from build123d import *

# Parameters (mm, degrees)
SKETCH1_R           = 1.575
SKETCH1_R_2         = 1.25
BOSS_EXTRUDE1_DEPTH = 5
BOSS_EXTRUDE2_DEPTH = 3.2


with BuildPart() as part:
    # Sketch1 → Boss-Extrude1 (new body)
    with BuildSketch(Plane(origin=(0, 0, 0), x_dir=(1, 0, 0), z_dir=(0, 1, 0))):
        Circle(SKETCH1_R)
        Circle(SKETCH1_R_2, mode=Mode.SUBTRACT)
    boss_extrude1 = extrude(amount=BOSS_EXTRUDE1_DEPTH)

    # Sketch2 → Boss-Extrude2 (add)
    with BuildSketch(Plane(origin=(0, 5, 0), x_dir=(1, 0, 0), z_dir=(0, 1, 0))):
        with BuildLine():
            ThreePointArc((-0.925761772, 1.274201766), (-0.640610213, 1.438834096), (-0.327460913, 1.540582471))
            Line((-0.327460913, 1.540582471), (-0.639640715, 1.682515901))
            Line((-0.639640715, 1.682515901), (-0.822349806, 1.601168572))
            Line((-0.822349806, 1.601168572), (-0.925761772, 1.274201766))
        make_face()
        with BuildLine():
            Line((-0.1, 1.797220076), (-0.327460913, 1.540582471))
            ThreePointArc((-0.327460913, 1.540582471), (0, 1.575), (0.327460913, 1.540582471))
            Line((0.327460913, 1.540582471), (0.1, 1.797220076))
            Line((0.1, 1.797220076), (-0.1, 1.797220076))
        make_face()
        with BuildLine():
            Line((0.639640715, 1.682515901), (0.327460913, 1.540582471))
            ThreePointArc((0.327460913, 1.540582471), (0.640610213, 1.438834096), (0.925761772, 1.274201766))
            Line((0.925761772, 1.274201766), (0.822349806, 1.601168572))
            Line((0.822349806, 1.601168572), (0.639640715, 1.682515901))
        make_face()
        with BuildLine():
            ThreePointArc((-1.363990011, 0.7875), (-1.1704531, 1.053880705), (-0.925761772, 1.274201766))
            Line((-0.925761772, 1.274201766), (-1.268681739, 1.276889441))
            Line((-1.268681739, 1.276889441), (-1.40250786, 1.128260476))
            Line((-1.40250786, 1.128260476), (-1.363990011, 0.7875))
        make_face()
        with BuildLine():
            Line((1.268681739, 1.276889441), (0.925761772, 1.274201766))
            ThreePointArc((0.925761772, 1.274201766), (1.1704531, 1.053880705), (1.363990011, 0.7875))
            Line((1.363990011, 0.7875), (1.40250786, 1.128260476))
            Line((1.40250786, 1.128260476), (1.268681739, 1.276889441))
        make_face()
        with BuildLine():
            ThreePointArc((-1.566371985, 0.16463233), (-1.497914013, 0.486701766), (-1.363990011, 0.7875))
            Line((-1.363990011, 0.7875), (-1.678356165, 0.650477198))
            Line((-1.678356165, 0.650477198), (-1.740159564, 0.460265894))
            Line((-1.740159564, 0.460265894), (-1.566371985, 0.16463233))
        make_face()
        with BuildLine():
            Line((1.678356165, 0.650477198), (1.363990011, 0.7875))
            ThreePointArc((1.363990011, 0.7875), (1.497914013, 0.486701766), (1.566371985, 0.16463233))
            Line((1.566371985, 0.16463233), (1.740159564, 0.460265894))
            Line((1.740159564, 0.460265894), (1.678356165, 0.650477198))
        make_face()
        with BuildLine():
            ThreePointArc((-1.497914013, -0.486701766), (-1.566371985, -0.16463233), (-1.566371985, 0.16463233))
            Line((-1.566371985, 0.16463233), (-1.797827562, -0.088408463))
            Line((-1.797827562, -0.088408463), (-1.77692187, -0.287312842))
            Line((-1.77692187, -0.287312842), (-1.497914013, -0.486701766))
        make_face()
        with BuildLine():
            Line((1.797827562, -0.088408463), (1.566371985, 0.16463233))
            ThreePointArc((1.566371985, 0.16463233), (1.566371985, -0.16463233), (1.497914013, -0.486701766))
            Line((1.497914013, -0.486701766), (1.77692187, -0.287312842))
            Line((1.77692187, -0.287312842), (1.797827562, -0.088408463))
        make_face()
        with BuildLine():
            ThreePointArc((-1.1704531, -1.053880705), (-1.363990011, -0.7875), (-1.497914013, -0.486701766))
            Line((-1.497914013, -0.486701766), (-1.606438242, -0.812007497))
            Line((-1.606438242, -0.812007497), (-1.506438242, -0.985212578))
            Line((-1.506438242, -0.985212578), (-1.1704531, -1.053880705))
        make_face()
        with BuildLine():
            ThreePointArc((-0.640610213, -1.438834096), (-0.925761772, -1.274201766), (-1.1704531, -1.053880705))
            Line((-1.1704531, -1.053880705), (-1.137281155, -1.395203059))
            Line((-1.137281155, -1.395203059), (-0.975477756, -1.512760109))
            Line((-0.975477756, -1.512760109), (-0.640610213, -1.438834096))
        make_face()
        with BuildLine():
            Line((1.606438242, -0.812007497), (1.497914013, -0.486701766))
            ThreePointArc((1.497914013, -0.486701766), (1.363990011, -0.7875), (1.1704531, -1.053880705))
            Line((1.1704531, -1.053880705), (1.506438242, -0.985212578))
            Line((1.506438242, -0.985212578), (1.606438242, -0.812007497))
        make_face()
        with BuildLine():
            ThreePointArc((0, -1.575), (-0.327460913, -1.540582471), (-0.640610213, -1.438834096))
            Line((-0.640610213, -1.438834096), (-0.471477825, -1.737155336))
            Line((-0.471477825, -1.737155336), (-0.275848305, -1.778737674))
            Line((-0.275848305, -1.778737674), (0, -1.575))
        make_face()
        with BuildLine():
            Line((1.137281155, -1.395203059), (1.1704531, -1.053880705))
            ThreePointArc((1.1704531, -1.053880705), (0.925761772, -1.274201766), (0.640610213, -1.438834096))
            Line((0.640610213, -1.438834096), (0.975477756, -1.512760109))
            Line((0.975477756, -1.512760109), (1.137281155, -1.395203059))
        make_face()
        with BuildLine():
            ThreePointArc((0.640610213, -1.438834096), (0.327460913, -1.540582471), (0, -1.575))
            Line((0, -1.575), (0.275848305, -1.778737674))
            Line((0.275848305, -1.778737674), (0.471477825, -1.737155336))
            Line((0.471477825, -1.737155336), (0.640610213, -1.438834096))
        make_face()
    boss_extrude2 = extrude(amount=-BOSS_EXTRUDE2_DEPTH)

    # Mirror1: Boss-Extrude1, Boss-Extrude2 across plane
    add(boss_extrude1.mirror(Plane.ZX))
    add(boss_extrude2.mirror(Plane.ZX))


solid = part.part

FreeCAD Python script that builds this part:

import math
import FreeCAD as App
import Part
import Sketcher

V = App.Vector
Q = App.Units.Quantity

doc = App.newDocument("Part")
params = doc.addObject("Spreadsheet::Sheet", "Params")
for row, (alias, value) in enumerate([
    ("sketch1_diameter", "2.5 mm"),
    ("sketch1_diameter2", "3.15 mm"),
    ("pad1_length", "5 mm"),
    ("sketch2_width", "0.2 mm"),
    ("sketch2_length", "0.2 mm"),
    ("pad2_length", "3.2 mm"),
], start=1):
    params.set(f"A{row}", alias)
    params.set(f"B{row}", "=" + value)
    params.setAlias(f"B{row}", alias)

body = doc.addObject("PartDesign::Body", "Body")

# Sketch on XZ plane
sketch1 = body.newObject("Sketcher::SketchObject", "Sketch")
sketch1.AttachmentSupport = (doc.getObject("XZ_Plane"), [""])
sketch1.MapMode = "FlatFace"
sketch1.addGeometry(Part.Circle(V(0, 0, 0), V(0, 0, 1), 1.6), False)
sketch1.addGeometry(Part.Circle(V(0, 0, 0), V(0, 0, 1), 1.2), False)
sketch1.addConstraint(Sketcher.Constraint("Coincident", 0, 3, -1, 1))
sketch1.addConstraint(Sketcher.Constraint("Coincident", 1, 3, -1, 1))
sketch1.addConstraint(Sketcher.Constraint("Diameter", 1, Q("2.5 mm")))
sketch1.addConstraint(Sketcher.Constraint("Diameter", 0, Q("3.15 mm")))
sketch1.setExpression("Constraints[2]", "Params.sketch1_diameter")
sketch1.setExpression("Constraints[3]", "Params.sketch1_diameter2")
pad1 = body.newObject("PartDesign::Pad", "Pad")
pad1.Profile = sketch1
pad1.setExpression("Length", "Params.pad1_length")
pad1.Reversed = True

# Sketch on XZ plane
sketch2 = body.newObject("Sketcher::SketchObject", "Sketch001")
sketch2.AttachmentSupport = (doc.getObject("XZ_Plane"), [""])
sketch2.MapMode = "FlatFace"
sketch2.AttachmentOffset = App.Placement(V(0, 0, -5), App.Rotation())
sketch2.addGeometry(Part.ArcOfCircle(Part.Circle(V(0, 0, 0), V(0, 0, 1), 1.57), math.radians(-126), math.radians(-102)), False)
sketch2.addGeometry(Part.LineSegment(V(-0.33, -1.54, 0), V(-0.64, -1.68, 0)), False)
sketch2.addGeometry(Part.LineSegment(V(-0.64, -1.68, 0), V(-0.82, -1.6, 0)), False)
sketch2.addGeometry(Part.LineSegment(V(-0.82, -1.6, 0), V(-0.93, -1.27, 0)), False)
sketch2.addGeometry(Part.LineSegment(V(-0.1, -1.8, 0), V(-0.33, -1.54, 0)), False)
sketch2.addGeometry(Part.ArcOfCircle(Part.Circle(V(0, 0, 0), V(0, 0, 1), 1.57), math.radians(-102), math.radians(-78)), False)
sketch2.addGeometry(Part.LineSegment(V(0.33, -1.54, 0), V(0.1, -1.8, 0)), False)
sketch2.addGeometry(Part.LineSegment(V(0.1, -1.8, 0), V(-0.1, -1.8, 0)), False)
sketch2.addGeometry(Part.LineSegment(V(0.64, -1.68, 0), V(0.33, -1.54, 0)), False)
sketch2.addGeometry(Part.ArcOfCircle(Part.Circle(V(0, 0, 0), V(0, 0, 1), 1.57), math.radians(-78), math.radians(-54)), False)
sketch2.addGeometry(Part.LineSegment(V(0.93, -1.27, 0), V(0.82, -1.6, 0)), False)
sketch2.addGeometry(Part.LineSegment(V(0.82, -1.6, 0), V(0.64, -1.68, 0)), False)
sketch2.addGeometry(Part.ArcOfCircle(Part.Circle(V(0, 0, 0), V(0, 0, 1), 1.57), math.radians(-150), math.radians(-126)), False)
sketch2.addGeometry(Part.LineSegment(V(-0.93, -1.27, 0), V(-1.27, -1.28, 0)), False)
sketch2.addGeometry(Part.LineSegment(V(-1.27, -1.28, 0), V(-1.4, -1.13, 0)), False)
sketch2.addGeometry(Part.LineSegment(V(-1.4, -1.13, 0), V(-1.36, -0.79, 0)), False)
sketch2.addGeometry(Part.LineSegment(V(1.27, -1.28, 0), V(0.93, -1.27, 0)), False)
sketch2.addGeometry(Part.ArcOfCircle(Part.Circle(V(0, 0, 0), V(0, 0, 1), 1.57), math.radians(-54), math.radians(-30)), False)
sketch2.addGeometry(Part.LineSegment(V(1.36, -0.79, 0), V(1.4, -1.13, 0)), False)
sketch2.addGeometry(Part.LineSegment(V(1.4, -1.13, 0), V(1.27, -1.28, 0)), False)
sketch2.addGeometry(Part.ArcOfCircle(Part.Circle(V(0, 0, 0), V(0, 0, 1), 1.58), math.radians(-174), math.radians(-150)), False)
sketch2.addGeometry(Part.LineSegment(V(-1.36, -0.79, 0), V(-1.68, -0.65, 0)), False)
sketch2.addGeometry(Part.LineSegment(V(-1.68, -0.65, 0), V(-1.74, -0.46, 0)), False)
sketch2.addGeometry(Part.LineSegment(V(-1.74, -0.46, 0), V(-1.57, -0.16, 0)), False)
sketch2.addGeometry(Part.LineSegment(V(1.68, -0.65, 0), V(1.36, -0.79, 0)), False)
sketch2.addGeometry(Part.ArcOfCircle(Part.Circle(V(0, 0, 0), V(0, 0, 1), 1.58), math.radians(-30), math.radians(-6)), False)
sketch2.addGeometry(Part.LineSegment(V(1.57, -0.16, 0), V(1.74, -0.46, 0)), False)
sketch2.addGeometry(Part.LineSegment(V(1.74, -0.46, 0), V(1.68, -0.65, 0)), False)
sketch2.addGeometry(Part.ArcOfCircle(Part.Circle(V(0, 0, 0), V(0, 0, 1), 1.57), math.radians(162), math.radians(186)), False)
sketch2.addGeometry(Part.LineSegment(V(-1.57, -0.16, 0), V(-1.8, 0.09, 0)), False)
sketch2.addGeometry(Part.LineSegment(V(-1.8, 0.09, 0), V(-1.78, 0.29, 0)), False)
sketch2.addGeometry(Part.LineSegment(V(-1.78, 0.29, 0), V(-1.5, 0.49, 0)), False)
sketch2.addGeometry(Part.LineSegment(V(1.8, 0.09, 0), V(1.57, -0.16, 0)), False)
sketch2.addGeometry(Part.ArcOfCircle(Part.Circle(V(0, 0, 0), V(0, 0, 1), 1.57), math.radians(-6), math.radians(18)), False)
sketch2.addGeometry(Part.LineSegment(V(1.5, 0.49, 0), V(1.78, 0.29, 0)), False)
sketch2.addGeometry(Part.LineSegment(V(1.78, 0.29, 0), V(1.8, 0.09, 0)), False)
sketch2.addGeometry(Part.ArcOfCircle(Part.Circle(V(0, 0, 0), V(0, 0, 1), 1.57), math.radians(138), math.radians(162)), False)
sketch2.addGeometry(Part.LineSegment(V(-1.5, 0.49, 0), V(-1.61, 0.81, 0)), False)
sketch2.addGeometry(Part.LineSegment(V(-1.61, 0.81, 0), V(-1.51, 0.99, 0)), False)
sketch2.addGeometry(Part.LineSegment(V(-1.51, 0.99, 0), V(-1.17, 1.05, 0)), False)
sketch2.addGeometry(Part.ArcOfCircle(Part.Circle(V(0, 0, 0), V(0, 0, 1), 1.58), math.radians(114), math.radians(138)), False)
sketch2.addGeometry(Part.LineSegment(V(-1.17, 1.05, 0), V(-1.14, 1.4, 0)), False)
sketch2.addGeometry(Part.LineSegment(V(-1.14, 1.4, 0), V(-0.98, 1.51, 0)), False)
sketch2.addGeometry(Part.LineSegment(V(-0.98, 1.51, 0), V(-0.64, 1.44, 0)), False)
sketch2.addGeometry(Part.LineSegment(V(1.61, 0.81, 0), V(1.5, 0.49, 0)), False)
sketch2.addGeometry(Part.ArcOfCircle(Part.Circle(V(0, 0, 0), V(0, 0, 1), 1.57), math.radians(18), math.radians(42)), False)
sketch2.addGeometry(Part.LineSegment(V(1.17, 1.05, 0), V(1.51, 0.99, 0)), False)
sketch2.addGeometry(Part.LineSegment(V(1.51, 0.99, 0), V(1.61, 0.81, 0)), False)
sketch2.addGeometry(Part.ArcOfCircle(Part.Circle(V(0, 0, 0), V(0, 0, 1), 1.58), math.radians(90), math.radians(114)), False)
sketch2.addGeometry(Part.LineSegment(V(-0.64, 1.44, 0), V(-0.47, 1.74, 0)), False)
sketch2.addGeometry(Part.LineSegment(V(-0.47, 1.74, 0), V(-0.28, 1.78, 0)), False)
sketch2.addGeometry(Part.LineSegment(V(-0.28, 1.78, 0), V(0, 1.57, 0)), False)
sketch2.addGeometry(Part.LineSegment(V(1.14, 1.4, 0), V(1.17, 1.05, 0)), False)
sketch2.addGeometry(Part.ArcOfCircle(Part.Circle(V(0, 0, 0), V(0, 0, 1), 1.58), math.radians(42), math.radians(66)), False)
sketch2.addGeometry(Part.LineSegment(V(0.64, 1.44, 0), V(0.98, 1.51, 0)), False)
sketch2.addGeometry(Part.LineSegment(V(0.98, 1.51, 0), V(1.14, 1.4, 0)), False)
sketch2.addGeometry(Part.ArcOfCircle(Part.Circle(V(0, 0, 0), V(0, 0, 1), 1.58), math.radians(66), math.radians(90)), False)
sketch2.addGeometry(Part.LineSegment(V(0, 1.57, 0), V(0.28, 1.78, 0)), False)
sketch2.addGeometry(Part.LineSegment(V(0.28, 1.78, 0), V(0.47, 1.74, 0)), False)
sketch2.addGeometry(Part.LineSegment(V(0.47, 1.74, 0), V(0.64, 1.44, 0)), False)
sketch2.addConstraint(Sketcher.Constraint("Coincident", 0, 2, 1, 1))
sketch2.addConstraint(Sketcher.Constraint("Coincident", 1, 2, 2, 1))
sketch2.addConstraint(Sketcher.Constraint("Coincident", 2, 2, 3, 1))
sketch2.addConstraint(Sketcher.Constraint("Coincident", 3, 2, 0, 1))
sketch2.addConstraint(Sketcher.Constraint("Coincident", 4, 2, 5, 1))
sketch2.addConstraint(Sketcher.Constraint("Coincident", 5, 2, 6, 1))
sketch2.addConstraint(Sketcher.Constraint("Coincident", 6, 2, 7, 1))
sketch2.addConstraint(Sketcher.Constraint("Coincident", 7, 2, 4, 1))
sketch2.addConstraint(Sketcher.Constraint("Coincident", 8, 2, 9, 1))
sketch2.addConstraint(Sketcher.Constraint("Coincident", 9, 2, 10, 1))
sketch2.addConstraint(Sketcher.Constraint("Coincident", 10, 2, 11, 1))
sketch2.addConstraint(Sketcher.Constraint("Coincident", 11, 2, 8, 1))
sketch2.addConstraint(Sketcher.Constraint("Coincident", 12, 2, 13, 1))
sketch2.addConstraint(Sketcher.Constraint("Coincident", 13, 2, 14, 1))
sketch2.addConstraint(Sketcher.Constraint("Coincident", 14, 2, 15, 1))
sketch2.addConstraint(Sketcher.Constraint("Coincident", 15, 2, 12, 1))
sketch2.addConstraint(Sketcher.Constraint("Coincident", 16, 2, 17, 1))
sketch2.addConstraint(Sketcher.Constraint("Coincident", 17, 2, 18, 1))
sketch2.addConstraint(Sketcher.Constraint("Coincident", 18, 2, 19, 1))
sketch2.addConstraint(Sketcher.Constraint("Coincident", 19, 2, 16, 1))
sketch2.addConstraint(Sketcher.Constraint("Coincident", 20, 2, 21, 1))
sketch2.addConstraint(Sketcher.Constraint("Coincident", 21, 2, 22, 1))
sketch2.addConstraint(Sketcher.Constraint("Coincident", 22, 2, 23, 1))
sketch2.addConstraint(Sketcher.Constraint("Coincident", 23, 2, 20, 1))
sketch2.addConstraint(Sketcher.Constraint("Coincident", 24, 2, 25, 1))
sketch2.addConstraint(Sketcher.Constraint("Coincident", 25, 2, 26, 1))
sketch2.addConstraint(Sketcher.Constraint("Coincident", 26, 2, 27, 1))
sketch2.addConstraint(Sketcher.Constraint("Coincident", 27, 2, 24, 1))
sketch2.addConstraint(Sketcher.Constraint("Coincident", 28, 2, 29, 1))
sketch2.addConstraint(Sketcher.Constraint("Coincident", 29, 2, 30, 1))
sketch2.addConstraint(Sketcher.Constraint("Coincident", 30, 2, 31, 1))
sketch2.addConstraint(Sketcher.Constraint("Coincident", 31, 2, 28, 1))
sketch2.addConstraint(Sketcher.Constraint("Coincident", 32, 2, 33, 1))
sketch2.addConstraint(Sketcher.Constraint("Coincident", 33, 2, 34, 1))
sketch2.addConstraint(Sketcher.Constraint("Coincident", 34, 2, 35, 1))
sketch2.addConstraint(Sketcher.Constraint("Coincident", 35, 2, 32, 1))
sketch2.addConstraint(Sketcher.Constraint("Coincident", 36, 2, 37, 1))
sketch2.addConstraint(Sketcher.Constraint("Coincident", 37, 2, 38, 1))
sketch2.addConstraint(Sketcher.Constraint("Coincident", 38, 2, 39, 1))
sketch2.addConstraint(Sketcher.Constraint("Coincident", 39, 2, 36, 1))
sketch2.addConstraint(Sketcher.Constraint("Coincident", 40, 2, 41, 1))
sketch2.addConstraint(Sketcher.Constraint("Coincident", 41, 2, 42, 1))
sketch2.addConstraint(Sketcher.Constraint("Coincident", 42, 2, 43, 1))
sketch2.addConstraint(Sketcher.Constraint("Coincident", 43, 2, 40, 1))
sketch2.addConstraint(Sketcher.Constraint("Coincident", 44, 2, 45, 1))
sketch2.addConstraint(Sketcher.Constraint("Coincident", 45, 2, 46, 1))
sketch2.addConstraint(Sketcher.Constraint("Coincident", 46, 2, 47, 1))
sketch2.addConstraint(Sketcher.Constraint("Coincident", 47, 2, 44, 1))
sketch2.addConstraint(Sketcher.Constraint("Coincident", 48, 2, 49, 1))
sketch2.addConstraint(Sketcher.Constraint("Coincident", 49, 2, 50, 1))
sketch2.addConstraint(Sketcher.Constraint("Coincident", 50, 2, 51, 1))
sketch2.addConstraint(Sketcher.Constraint("Coincident", 51, 2, 48, 1))
sketch2.addConstraint(Sketcher.Constraint("Coincident", 52, 2, 53, 1))
sketch2.addConstraint(Sketcher.Constraint("Coincident", 53, 2, 54, 1))
sketch2.addConstraint(Sketcher.Constraint("Coincident", 54, 2, 55, 1))
sketch2.addConstraint(Sketcher.Constraint("Coincident", 55, 2, 52, 1))
sketch2.addConstraint(Sketcher.Constraint("Coincident", 56, 2, 57, 1))
sketch2.addConstraint(Sketcher.Constraint("Coincident", 57, 2, 58, 1))
sketch2.addConstraint(Sketcher.Constraint("Coincident", 58, 2, 59, 1))
sketch2.addConstraint(Sketcher.Constraint("Coincident", 59, 2, 56, 1))
sketch2.addConstraint(Sketcher.Constraint("Horizontal", 7))
sketch2.addConstraint(Sketcher.Constraint("Coincident", 0, 3, -1, 1))
sketch2.addConstraint(Sketcher.Constraint("Coincident", 5, 3, -1, 1))
sketch2.addConstraint(Sketcher.Constraint("Coincident", 9, 3, -1, 1))
sketch2.addConstraint(Sketcher.Constraint("Coincident", 12, 3, -1, 1))
sketch2.addConstraint(Sketcher.Constraint("Coincident", 17, 3, -1, 1))
sketch2.addConstraint(Sketcher.Constraint("Coincident", 20, 3, -1, 1))
sketch2.addConstraint(Sketcher.Constraint("Coincident", 25, 3, -1, 1))
sketch2.addConstraint(Sketcher.Constraint("Coincident", 28, 3, -1, 1))
sketch2.addConstraint(Sketcher.Constraint("Coincident", 33, 3, -1, 1))
sketch2.addConstraint(Sketcher.Constraint("Coincident", 36, 3, -1, 1))
sketch2.addConstraint(Sketcher.Constraint("Coincident", 40, 3, -1, 1))
sketch2.addConstraint(Sketcher.Constraint("Coincident", 45, 3, -1, 1))
sketch2.addConstraint(Sketcher.Constraint("Coincident", 48, 3, -1, 1))
sketch2.addConstraint(Sketcher.Constraint("Coincident", 53, 3, -1, 1))
sketch2.addConstraint(Sketcher.Constraint("Coincident", 56, 3, -1, 1))
sketch2.addConstraint(Sketcher.Constraint("Coincident", 4, 2, 0, 2))
sketch2.addConstraint(Sketcher.Constraint("Coincident", 8, 2, 5, 2))
sketch2.addConstraint(Sketcher.Constraint("Coincident", 12, 2, 3, 2))
sketch2.addConstraint(Sketcher.Constraint("Coincident", 16, 2, 9, 2))
sketch2.addConstraint(Sketcher.Constraint("Coincident", 20, 2, 15, 2))
sketch2.addConstraint(Sketcher.Constraint("Coincident", 24, 2, 17, 2))
sketch2.addConstraint(Sketcher.Constraint("Coincident", 28, 2, 23, 2))
sketch2.addConstraint(Sketcher.Constraint("Coincident", 32, 2, 25, 2))
sketch2.addConstraint(Sketcher.Constraint("Coincident", 36, 2, 31, 2))
sketch2.addConstraint(Sketcher.Constraint("Coincident", 40, 2, 39, 2))
sketch2.addConstraint(Sketcher.Constraint("Coincident", 44, 2, 33, 2))
sketch2.addConstraint(Sketcher.Constraint("Coincident", 48, 2, 43, 2))
sketch2.addConstraint(Sketcher.Constraint("Coincident", 52, 2, 45, 2))
sketch2.addConstraint(Sketcher.Constraint("Coincident", 56, 2, 51, 2))
sketch2.addConstraint(Sketcher.Constraint("Symmetric", 2, 2, 10, 2, -2))
sketch2.addConstraint(Sketcher.Constraint("Symmetric", 1, 2, 11, 2, -2))
sketch2.addConstraint(Sketcher.Constraint("Symmetric", 14, 2, 18, 2, -2))
sketch2.addConstraint(Sketcher.Constraint("Symmetric", 13, 2, 19, 2, -2))
sketch2.addConstraint(Sketcher.Constraint("Symmetric", 22, 2, 26, 2, -2))
sketch2.addConstraint(Sketcher.Constraint("Symmetric", 21, 2, 27, 2, -2))
sketch2.addConstraint(Sketcher.Constraint("Symmetric", 30, 2, 34, 2, -2))
sketch2.addConstraint(Sketcher.Constraint("Symmetric", 29, 2, 35, 2, -2))
sketch2.addConstraint(Sketcher.Constraint("Symmetric", 38, 2, 46, 2, -2))
sketch2.addConstraint(Sketcher.Constraint("Symmetric", 37, 2, 47, 2, -2))
sketch2.addConstraint(Sketcher.Constraint("Symmetric", 42, 2, 54, 2, -2))
sketch2.addConstraint(Sketcher.Constraint("Symmetric", 41, 2, 55, 2, -2))
sketch2.addConstraint(Sketcher.Constraint("Symmetric", 50, 2, 57, 2, -2))
sketch2.addConstraint(Sketcher.Constraint("Symmetric", 49, 2, 58, 2, -2))
sketch2.addConstraint(Sketcher.Constraint("PointOnObject", 51, 2, -2))
sketch2.addConstraint(Sketcher.Constraint("Horizontal", 4, 2, 5, 2))
sketch2.addConstraint(Sketcher.Constraint("Horizontal", 3, 2, 9, 2))
sketch2.addConstraint(Sketcher.Constraint("Horizontal", 15, 2, 17, 2))
sketch2.addConstraint(Sketcher.Constraint("Horizontal", 23, 2, 25, 2))
sketch2.addConstraint(Sketcher.Constraint("Horizontal", 31, 2, 33, 2))
sketch2.addConstraint(Sketcher.Constraint("Horizontal", 40, 2, 45, 2))
sketch2.addConstraint(Sketcher.Constraint("Horizontal", 48, 2, 53, 2))
sketch2.addConstraint(Sketcher.Constraint("Horizontal", 48, 2, 59, 2))
sketch2.addConstraint(Sketcher.Constraint("Equal", 1, 3))
sketch2.addConstraint(Sketcher.Constraint("Equal", 3, 4))
sketch2.addConstraint(Sketcher.Constraint("Equal", 4, 6))
sketch2.addConstraint(Sketcher.Constraint("Equal", 10, 13))
sketch2.addConstraint(Sketcher.Constraint("Equal", 11, 14))
sketch2.addConstraint(Sketcher.Constraint("Equal", 13, 15))
sketch2.addConstraint(Sketcher.Constraint("Equal", 18, 21))
sketch2.addConstraint(Sketcher.Constraint("Equal", 19, 22))
sketch2.addConstraint(Sketcher.Constraint("Equal", 21, 23))
sketch2.addConstraint(Sketcher.Constraint("Equal", 26, 29))
sketch2.addConstraint(Sketcher.Constraint("Equal", 27, 30))
sketch2.addConstraint(Sketcher.Constraint("Equal", 29, 31))
sketch2.addConstraint(Sketcher.Constraint("Equal", 34, 37))
sketch2.addConstraint(Sketcher.Constraint("Equal", 35, 38))
sketch2.addConstraint(Sketcher.Constraint("Equal", 37, 39))
sketch2.addConstraint(Sketcher.Constraint("Equal", 39, 41))
sketch2.addConstraint(Sketcher.Constraint("Equal", 38, 42))
sketch2.addConstraint(Sketcher.Constraint("Equal", 41, 43))
sketch2.addConstraint(Sketcher.Constraint("Equal", 46, 49))
sketch2.addConstraint(Sketcher.Constraint("Equal", 47, 50))
sketch2.addConstraint(Sketcher.Constraint("Equal", 49, 51))
sketch2.addConstraint(Sketcher.Constraint("Angle", 2, Q("156 deg")))
sketch2.addConstraint(Sketcher.Constraint("Angle", 14, Q("132 deg")))
sketch2.addConstraint(Sketcher.Constraint("Angle", 22, Q("108 deg")))
sketch2.addConstraint(Sketcher.Constraint("Angle", 30, Q("84 deg")))
sketch2.addConstraint(Sketcher.Constraint("Angle", 38, Q("60 deg")))
sketch2.addConstraint(Sketcher.Constraint("Angle", 42, Q("36 deg")))
sketch2.addConstraint(Sketcher.Constraint("Angle", 50, Q("12 deg")))
sketch2.addConstraint(Sketcher.Constraint("DistanceX", 7, 2, 7, 1, Q("0.2 mm")))
sketch2.addConstraint(Sketcher.Constraint("Radius", 0, Q("1.575 mm")))
sketch2.addConstraint(Sketcher.Constraint("Distance", 2, Q("0.2 mm")))
sketch2.addConstraint(Sketcher.Constraint("DistanceY", 3, 2, -1, 1, Q("1.274202 mm")))
sketch2.addConstraint(Sketcher.Constraint("DistanceY", 15, 2, -1, 1, Q("0.7875 mm")))
sketch2.addConstraint(Sketcher.Constraint("DistanceY", -1, 1, 31, 2, Q("0.486702 mm")))
sketch2.addConstraint(Sketcher.Constraint("Distance", 1, Q("0.34293 mm")))
sketch2.addConstraint(Sketcher.Constraint("DistanceX", 0, 2, -1, 1, Q("0.327461 mm")))
sketch2.addConstraint(Sketcher.Constraint("DistanceX", 22, 2, -1, 1, Q("1.74016 mm")))
sketch2.addConstraint(Sketcher.Constraint("DistanceX", 37, 2, -1, 1, Q("1.606438 mm")))
sketch2.addConstraint(Sketcher.Constraint("DistanceX", 41, 2, -1, 1, Q("1.137281 mm")))
sketch2.setExpression("Constraints[141]", "Params.sketch2_width")
sketch2.setExpression("Constraints[143]", "Params.sketch2_length")
pad2 = body.newObject("PartDesign::Pad", "Pad001")
pad2.Profile = sketch2
pad2.setExpression("Length", "Params.pad2_length")
doc.recompute()

mirrored = body.newObject("PartDesign::Mirrored", "Mirrored")
mirrored.Originals = [pad1, pad2]
mirrored.MirrorPlane = (doc.getObject("XZ_Plane"), [""])
body.Tip = mirrored

doc.recompute()
